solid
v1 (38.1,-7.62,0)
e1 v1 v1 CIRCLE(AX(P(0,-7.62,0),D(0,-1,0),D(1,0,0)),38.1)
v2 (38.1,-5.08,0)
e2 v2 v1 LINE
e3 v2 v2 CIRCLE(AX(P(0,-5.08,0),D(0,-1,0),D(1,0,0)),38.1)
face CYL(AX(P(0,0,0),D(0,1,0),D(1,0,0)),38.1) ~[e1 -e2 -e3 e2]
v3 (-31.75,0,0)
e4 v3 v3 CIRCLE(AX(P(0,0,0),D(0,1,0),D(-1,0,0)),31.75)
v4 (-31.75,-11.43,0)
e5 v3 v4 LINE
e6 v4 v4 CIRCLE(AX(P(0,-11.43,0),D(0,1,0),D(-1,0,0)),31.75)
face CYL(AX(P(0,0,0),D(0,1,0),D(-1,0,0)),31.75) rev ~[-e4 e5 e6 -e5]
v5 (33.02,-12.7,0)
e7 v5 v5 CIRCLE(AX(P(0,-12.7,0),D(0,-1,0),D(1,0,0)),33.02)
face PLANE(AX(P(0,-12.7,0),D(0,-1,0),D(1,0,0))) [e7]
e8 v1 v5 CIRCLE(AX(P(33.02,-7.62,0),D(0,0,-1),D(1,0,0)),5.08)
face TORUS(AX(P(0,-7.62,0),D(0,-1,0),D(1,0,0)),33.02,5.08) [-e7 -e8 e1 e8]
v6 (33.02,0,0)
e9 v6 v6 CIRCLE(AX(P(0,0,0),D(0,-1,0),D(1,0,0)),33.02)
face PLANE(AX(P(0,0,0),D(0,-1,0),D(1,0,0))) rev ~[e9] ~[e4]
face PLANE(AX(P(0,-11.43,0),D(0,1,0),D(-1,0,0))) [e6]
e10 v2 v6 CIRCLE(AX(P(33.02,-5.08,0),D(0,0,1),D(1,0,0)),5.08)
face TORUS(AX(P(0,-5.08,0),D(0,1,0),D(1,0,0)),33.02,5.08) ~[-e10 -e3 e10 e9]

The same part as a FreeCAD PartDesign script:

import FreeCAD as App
import Part
import Sketcher
Q = App.Units.Quantity


def edges_at(feature, points):
    """Names of the edges that pass closest to the given points."""
    edges = feature.Shape.Edges
    near = lambda p: min(range(len(edges)), key=lambda i: edges[i].distToShape(Part.Vertex(*p))[0])
    return sorted({f"Edge{near(p) + 1}" for p in points})

doc = App.newDocument("Part")
body = doc.addObject("PartDesign::Body", "Body")

# Sketch on XZ plane
sketch1 = body.newObject("Sketcher::SketchObject", "Sketch")
sketch1.AttachmentSupport = (doc.getObject("XZ_Plane"), [""])
sketch1.MapMode = "FlatFace"
sketch1.addGeometry(Part.Circle(App.Vector(0, 0, 0), App.Vector(0, 0, 1), 38), False)
sketch1.addConstraint(Sketcher.Constraint("Coincident", 0, 3, -1, 1))
sketch1.addConstraint(Sketcher.Constraint("Diameter", 0, Q("3 in")))
pad1 = body.newObject("PartDesign::Pad", "Pad")
pad1.Profile = sketch1
pad1.Length = Q("0.5 in")

# Sketch on XZ plane
sketch2 = body.newObject("Sketcher::SketchObject", "Sketch001")
sketch2.AttachmentSupport = (doc.getObject("XZ_Plane"), [""])
sketch2.MapMode = "FlatFace"
sketch2.addGeometry(Part.Circle(App.Vector(0, 0, 0), App.Vector(0, 0, 1), 32), False)
sketch2.addConstraint(Sketcher.Constraint("Coincident", 0, 3, -1, 1))
sketch2.addConstraint(Sketcher.Constraint("Diameter", 0, Q("2.5 in")))
pocket1 = body.newObject("PartDesign::Pocket", "Pocket")
pocket1.Profile = sketch2
pocket1.Length = Q("0.45 in")
pocket1.Reversed = True
doc.recompute()

fillet = body.newObject("PartDesign::Fillet", "Fillet")
fillet.Base = (pocket1, edges_at(pocket1, [(38.1, -6.35, 0), (-38.1, 0, 0), (-38.1, -12.7, 0)]))
fillet.Radius = Q("0.2 in")

doc.recompute()
